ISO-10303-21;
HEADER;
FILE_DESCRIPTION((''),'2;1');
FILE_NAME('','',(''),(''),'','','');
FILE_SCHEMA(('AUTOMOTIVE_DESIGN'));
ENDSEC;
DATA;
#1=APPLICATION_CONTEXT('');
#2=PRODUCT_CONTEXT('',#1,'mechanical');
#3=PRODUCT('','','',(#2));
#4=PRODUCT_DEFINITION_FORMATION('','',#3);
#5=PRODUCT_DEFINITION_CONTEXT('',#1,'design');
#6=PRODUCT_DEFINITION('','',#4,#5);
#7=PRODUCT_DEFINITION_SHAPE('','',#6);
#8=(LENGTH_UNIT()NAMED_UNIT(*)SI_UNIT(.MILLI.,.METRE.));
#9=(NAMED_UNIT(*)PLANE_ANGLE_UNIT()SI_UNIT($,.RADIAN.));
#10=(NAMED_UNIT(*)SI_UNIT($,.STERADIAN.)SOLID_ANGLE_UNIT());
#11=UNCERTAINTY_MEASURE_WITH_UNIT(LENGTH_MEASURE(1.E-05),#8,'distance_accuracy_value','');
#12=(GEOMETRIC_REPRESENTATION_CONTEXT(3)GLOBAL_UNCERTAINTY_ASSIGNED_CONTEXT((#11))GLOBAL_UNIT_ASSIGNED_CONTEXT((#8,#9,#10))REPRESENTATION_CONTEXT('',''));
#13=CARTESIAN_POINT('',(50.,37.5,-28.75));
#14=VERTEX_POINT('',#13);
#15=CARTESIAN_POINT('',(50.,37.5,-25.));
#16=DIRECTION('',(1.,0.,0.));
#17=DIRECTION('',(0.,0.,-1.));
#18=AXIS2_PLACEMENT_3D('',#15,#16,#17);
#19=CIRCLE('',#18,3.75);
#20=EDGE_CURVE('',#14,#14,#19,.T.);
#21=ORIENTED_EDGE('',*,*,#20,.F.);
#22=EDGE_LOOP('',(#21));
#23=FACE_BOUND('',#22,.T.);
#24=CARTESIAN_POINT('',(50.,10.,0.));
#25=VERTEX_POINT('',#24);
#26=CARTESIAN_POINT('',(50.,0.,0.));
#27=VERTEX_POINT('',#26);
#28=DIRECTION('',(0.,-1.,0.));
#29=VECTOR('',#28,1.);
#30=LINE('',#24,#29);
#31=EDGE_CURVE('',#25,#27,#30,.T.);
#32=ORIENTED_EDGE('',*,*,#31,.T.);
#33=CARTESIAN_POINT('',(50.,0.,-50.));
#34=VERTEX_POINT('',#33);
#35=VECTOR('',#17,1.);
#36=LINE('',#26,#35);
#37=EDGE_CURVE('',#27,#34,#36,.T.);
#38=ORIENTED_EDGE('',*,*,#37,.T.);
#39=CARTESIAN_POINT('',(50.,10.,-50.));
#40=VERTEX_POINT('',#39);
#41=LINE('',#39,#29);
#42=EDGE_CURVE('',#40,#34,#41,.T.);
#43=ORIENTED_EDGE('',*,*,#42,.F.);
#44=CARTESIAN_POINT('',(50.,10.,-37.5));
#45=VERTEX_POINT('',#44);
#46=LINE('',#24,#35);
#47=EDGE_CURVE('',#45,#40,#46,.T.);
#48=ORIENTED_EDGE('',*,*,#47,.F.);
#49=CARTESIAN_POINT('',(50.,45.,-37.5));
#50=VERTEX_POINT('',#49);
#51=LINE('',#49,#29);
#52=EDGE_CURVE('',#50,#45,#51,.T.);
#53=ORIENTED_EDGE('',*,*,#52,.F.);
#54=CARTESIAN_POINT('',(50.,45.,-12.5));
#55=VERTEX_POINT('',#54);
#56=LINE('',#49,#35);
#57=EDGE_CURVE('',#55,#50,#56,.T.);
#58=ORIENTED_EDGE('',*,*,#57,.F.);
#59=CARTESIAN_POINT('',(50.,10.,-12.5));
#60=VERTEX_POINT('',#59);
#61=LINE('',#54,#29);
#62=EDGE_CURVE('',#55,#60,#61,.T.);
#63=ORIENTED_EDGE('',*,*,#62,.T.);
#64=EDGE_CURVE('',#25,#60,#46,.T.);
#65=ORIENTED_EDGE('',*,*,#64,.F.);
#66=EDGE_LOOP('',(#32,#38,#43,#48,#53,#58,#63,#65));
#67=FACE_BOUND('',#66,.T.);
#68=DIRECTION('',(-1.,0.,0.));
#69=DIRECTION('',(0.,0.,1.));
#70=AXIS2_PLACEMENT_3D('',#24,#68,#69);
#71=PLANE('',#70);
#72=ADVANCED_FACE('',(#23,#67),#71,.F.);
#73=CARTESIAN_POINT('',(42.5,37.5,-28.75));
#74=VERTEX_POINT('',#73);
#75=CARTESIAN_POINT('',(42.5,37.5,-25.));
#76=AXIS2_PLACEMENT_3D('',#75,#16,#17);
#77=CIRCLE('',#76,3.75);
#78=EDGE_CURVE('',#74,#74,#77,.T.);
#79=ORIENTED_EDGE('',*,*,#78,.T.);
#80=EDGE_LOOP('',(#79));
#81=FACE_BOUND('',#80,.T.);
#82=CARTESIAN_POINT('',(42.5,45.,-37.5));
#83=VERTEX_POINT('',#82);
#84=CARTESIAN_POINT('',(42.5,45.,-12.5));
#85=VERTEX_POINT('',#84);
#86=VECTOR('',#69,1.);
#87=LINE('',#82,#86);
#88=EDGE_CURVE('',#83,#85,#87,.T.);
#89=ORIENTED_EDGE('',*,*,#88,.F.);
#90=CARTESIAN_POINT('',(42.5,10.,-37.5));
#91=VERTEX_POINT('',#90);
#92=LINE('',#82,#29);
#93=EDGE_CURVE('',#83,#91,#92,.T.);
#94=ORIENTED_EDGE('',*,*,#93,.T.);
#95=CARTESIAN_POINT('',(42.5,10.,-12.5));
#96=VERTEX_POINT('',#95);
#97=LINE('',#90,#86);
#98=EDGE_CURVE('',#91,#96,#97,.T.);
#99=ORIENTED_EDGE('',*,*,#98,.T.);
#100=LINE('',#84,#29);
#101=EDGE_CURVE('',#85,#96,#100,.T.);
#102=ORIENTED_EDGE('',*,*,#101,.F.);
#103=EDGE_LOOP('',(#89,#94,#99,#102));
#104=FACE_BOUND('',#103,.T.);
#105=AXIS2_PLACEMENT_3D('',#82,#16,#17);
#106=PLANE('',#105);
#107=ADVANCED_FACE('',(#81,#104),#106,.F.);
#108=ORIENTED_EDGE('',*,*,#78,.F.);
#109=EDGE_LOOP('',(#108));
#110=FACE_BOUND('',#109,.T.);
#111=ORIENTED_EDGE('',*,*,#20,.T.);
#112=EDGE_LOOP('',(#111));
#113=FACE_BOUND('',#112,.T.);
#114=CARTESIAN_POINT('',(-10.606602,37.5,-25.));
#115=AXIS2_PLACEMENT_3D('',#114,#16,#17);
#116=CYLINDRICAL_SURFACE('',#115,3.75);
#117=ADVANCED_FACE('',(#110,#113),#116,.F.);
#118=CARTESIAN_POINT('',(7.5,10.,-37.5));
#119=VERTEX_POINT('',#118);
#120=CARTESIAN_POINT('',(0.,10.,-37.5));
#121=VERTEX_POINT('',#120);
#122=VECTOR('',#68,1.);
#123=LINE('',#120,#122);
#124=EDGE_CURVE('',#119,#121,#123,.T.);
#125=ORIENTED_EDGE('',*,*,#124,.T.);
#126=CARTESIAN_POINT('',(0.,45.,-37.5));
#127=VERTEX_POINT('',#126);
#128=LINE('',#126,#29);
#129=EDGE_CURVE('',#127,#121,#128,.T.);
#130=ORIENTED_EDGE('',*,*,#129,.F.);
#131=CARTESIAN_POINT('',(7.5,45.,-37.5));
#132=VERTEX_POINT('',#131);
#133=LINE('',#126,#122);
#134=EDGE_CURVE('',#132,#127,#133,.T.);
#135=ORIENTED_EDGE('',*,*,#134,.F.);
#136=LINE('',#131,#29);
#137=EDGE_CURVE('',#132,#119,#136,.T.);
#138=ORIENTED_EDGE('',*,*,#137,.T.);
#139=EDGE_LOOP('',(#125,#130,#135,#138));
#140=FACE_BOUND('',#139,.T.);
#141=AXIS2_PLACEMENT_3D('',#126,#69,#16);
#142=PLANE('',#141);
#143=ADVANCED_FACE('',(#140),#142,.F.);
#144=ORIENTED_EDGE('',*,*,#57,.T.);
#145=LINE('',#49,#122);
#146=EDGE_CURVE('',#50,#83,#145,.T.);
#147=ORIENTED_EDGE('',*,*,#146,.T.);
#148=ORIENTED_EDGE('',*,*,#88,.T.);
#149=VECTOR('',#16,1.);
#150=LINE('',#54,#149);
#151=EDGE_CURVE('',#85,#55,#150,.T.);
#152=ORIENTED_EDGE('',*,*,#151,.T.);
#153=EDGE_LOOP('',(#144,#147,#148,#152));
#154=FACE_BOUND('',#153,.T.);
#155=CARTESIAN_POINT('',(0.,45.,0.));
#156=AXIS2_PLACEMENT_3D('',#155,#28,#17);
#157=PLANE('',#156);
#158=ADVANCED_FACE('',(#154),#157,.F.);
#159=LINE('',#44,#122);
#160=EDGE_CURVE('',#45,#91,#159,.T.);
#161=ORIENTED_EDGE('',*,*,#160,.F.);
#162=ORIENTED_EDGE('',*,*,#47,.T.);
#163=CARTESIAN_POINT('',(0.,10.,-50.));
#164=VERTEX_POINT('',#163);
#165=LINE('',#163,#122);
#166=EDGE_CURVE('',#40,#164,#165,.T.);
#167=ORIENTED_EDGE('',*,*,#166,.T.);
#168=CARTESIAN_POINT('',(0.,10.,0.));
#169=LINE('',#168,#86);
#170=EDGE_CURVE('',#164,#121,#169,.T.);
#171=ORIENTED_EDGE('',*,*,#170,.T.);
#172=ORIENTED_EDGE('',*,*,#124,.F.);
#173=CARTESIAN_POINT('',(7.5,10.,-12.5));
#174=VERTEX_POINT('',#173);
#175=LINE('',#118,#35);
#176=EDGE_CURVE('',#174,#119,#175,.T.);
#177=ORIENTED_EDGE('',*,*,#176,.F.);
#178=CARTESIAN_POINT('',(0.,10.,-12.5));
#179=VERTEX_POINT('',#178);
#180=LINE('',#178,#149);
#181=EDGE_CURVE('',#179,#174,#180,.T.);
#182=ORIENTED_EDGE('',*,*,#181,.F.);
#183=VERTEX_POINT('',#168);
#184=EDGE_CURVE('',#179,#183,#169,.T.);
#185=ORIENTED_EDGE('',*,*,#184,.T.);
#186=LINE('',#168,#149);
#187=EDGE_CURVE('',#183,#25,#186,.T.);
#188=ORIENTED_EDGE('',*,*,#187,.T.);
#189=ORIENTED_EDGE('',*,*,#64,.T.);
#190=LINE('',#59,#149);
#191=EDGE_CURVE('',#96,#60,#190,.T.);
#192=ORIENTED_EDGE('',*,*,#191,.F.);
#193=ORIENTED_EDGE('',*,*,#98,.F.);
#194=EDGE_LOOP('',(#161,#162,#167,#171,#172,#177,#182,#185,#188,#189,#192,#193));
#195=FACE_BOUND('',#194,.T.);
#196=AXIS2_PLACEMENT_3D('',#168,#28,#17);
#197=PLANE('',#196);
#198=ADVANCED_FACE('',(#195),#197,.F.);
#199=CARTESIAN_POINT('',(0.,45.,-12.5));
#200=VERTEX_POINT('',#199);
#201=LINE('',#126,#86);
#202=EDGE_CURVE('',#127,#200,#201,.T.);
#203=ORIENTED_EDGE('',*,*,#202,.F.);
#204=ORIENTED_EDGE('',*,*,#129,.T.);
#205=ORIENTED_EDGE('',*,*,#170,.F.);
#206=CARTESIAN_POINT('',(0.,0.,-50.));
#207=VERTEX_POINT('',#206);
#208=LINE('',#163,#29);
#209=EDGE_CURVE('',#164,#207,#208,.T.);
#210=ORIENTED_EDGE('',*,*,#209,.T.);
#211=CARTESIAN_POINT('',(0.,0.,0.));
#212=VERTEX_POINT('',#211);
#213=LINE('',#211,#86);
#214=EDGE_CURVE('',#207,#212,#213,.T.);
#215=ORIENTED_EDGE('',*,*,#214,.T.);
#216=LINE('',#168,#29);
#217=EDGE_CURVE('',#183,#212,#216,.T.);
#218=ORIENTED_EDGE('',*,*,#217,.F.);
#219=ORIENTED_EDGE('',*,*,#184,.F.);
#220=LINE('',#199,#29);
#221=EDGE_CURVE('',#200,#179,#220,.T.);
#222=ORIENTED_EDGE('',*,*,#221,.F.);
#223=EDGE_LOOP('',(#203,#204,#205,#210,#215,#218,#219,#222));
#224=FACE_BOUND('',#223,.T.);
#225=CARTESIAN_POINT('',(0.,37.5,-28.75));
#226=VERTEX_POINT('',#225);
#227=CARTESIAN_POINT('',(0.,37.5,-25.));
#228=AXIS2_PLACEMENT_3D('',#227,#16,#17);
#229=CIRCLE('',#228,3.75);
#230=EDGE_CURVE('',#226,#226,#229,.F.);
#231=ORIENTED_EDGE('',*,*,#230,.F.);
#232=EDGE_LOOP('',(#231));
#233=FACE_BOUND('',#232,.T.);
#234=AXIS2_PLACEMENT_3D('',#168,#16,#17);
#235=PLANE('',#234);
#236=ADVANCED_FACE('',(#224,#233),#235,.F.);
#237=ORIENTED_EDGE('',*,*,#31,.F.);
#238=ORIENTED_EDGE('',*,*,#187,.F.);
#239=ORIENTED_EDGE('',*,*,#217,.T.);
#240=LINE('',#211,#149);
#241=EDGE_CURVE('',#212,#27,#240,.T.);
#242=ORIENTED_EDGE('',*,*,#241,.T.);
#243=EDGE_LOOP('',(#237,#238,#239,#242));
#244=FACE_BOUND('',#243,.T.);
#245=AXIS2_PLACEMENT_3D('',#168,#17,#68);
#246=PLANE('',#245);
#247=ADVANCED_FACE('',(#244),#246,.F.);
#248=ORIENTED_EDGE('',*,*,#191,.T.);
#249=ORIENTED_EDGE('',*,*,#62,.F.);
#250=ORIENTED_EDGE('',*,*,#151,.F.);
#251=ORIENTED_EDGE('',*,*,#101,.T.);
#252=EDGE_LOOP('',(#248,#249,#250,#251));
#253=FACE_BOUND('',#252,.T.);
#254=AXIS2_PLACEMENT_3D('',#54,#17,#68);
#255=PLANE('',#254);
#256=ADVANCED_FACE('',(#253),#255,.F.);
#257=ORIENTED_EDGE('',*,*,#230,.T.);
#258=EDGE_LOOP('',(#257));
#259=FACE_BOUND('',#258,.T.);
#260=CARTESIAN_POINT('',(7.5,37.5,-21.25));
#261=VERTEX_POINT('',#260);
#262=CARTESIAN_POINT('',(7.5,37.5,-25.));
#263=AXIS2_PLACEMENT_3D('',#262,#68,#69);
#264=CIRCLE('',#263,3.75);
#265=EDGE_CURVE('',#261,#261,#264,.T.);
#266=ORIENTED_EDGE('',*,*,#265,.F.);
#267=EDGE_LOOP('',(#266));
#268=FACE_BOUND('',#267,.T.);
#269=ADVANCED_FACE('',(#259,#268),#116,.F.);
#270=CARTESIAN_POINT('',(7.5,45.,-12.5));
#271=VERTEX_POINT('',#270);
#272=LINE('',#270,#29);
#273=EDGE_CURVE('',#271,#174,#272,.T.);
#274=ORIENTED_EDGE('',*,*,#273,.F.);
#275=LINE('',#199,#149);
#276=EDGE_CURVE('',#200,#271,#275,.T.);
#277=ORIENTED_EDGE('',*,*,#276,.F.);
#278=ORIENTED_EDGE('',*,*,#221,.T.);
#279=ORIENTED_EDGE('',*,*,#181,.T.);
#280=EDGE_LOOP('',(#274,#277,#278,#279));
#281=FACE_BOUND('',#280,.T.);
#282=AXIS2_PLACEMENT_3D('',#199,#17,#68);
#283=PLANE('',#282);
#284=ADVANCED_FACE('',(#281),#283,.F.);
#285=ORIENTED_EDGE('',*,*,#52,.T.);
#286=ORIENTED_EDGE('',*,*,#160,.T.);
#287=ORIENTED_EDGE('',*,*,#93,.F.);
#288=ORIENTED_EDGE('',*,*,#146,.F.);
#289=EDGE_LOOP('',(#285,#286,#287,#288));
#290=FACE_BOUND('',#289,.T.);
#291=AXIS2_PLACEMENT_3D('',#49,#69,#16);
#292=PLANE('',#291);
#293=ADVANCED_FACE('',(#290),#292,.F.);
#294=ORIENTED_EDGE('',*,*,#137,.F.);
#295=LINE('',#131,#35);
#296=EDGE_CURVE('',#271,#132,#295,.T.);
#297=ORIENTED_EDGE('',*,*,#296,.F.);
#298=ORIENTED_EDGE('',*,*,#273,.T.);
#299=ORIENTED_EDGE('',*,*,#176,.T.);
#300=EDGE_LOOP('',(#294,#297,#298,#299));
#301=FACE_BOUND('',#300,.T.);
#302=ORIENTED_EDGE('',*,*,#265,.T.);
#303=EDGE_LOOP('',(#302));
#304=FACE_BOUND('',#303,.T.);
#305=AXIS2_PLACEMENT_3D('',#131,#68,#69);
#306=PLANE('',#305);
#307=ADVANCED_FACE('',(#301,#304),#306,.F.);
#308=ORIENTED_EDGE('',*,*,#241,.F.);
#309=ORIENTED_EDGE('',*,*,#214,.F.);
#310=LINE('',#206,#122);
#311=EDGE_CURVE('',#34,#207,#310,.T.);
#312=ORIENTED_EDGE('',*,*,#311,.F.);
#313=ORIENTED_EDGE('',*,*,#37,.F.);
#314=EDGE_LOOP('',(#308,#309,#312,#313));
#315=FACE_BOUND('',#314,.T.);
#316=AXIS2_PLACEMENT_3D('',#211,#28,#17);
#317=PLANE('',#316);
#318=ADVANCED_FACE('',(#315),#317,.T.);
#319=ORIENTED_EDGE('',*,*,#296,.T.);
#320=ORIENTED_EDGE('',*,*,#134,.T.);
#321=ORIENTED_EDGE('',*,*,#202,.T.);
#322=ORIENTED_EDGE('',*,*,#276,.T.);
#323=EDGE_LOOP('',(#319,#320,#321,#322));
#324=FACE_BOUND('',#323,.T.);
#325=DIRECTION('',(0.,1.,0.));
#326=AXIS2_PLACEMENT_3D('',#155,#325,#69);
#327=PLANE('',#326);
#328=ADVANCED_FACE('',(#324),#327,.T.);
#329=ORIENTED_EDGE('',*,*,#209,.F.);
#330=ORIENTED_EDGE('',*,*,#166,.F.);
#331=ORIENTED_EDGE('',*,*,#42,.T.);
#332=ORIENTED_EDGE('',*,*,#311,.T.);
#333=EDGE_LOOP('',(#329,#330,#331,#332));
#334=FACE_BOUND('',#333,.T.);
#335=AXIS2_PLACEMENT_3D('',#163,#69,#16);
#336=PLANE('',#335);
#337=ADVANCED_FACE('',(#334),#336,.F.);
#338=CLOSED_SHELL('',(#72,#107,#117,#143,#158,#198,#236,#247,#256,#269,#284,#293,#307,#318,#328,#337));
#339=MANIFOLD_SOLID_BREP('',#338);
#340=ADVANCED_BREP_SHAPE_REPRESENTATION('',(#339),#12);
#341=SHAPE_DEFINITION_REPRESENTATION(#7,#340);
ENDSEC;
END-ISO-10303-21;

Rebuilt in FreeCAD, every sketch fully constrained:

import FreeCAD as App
import Part
import Sketcher

V = App.Vector
Q = App.Units.Quantity

doc = App.newDocument("Part")
body = doc.addObject("PartDesign::Body", "Body")

sketch1 = body.newObject("Sketcher::SketchObject", "Sketch")
sketch1.AttachmentSupport = (doc.getObject("XZ_Plane"), [""])
sketch1.MapMode = "FlatFace"
sketch1.addGeometry(Part.LineSegment(V(0, -50, 0), V(0, 0, 0)), False)
sketch1.addGeometry(Part.LineSegment(V(0, 0, 0), V(50, 0, 0)), False)
sketch1.addGeometry(Part.LineSegment(V(50, 0, 0), V(50, -50, 0)), False)
sketch1.addGeometry(Part.LineSegment(V(50, -50, 0), V(0, -50, 0)), False)
sketch1.addConstraint(Sketcher.Constraint("Coincident", 0, 2, 1, 1))
sketch1.addConstraint(Sketcher.Constraint("Coincident", 1, 2, 2, 1))
sketch1.addConstraint(Sketcher.Constraint("Coincident", 2, 2, 3, 1))
sketch1.addConstraint(Sketcher.Constraint("Coincident", 3, 2, 0, 1))
sketch1.addConstraint(Sketcher.Constraint("Vertical", 0))
sketch1.addConstraint(Sketcher.Constraint("Horizontal", 1))
sketch1.addConstraint(Sketcher.Constraint("Vertical", 2))
sketch1.addConstraint(Sketcher.Constraint("Horizontal", 3))
sketch1.addConstraint(Sketcher.Constraint("Coincident", 0, 2, -1, 1))
sketch1.addConstraint(Sketcher.Constraint("Equal", 3, 0))
sketch1.addConstraint(Sketcher.Constraint("DistanceX", 1, 1, 1, 2, Q("50 mm")))
pad1 = body.newObject("PartDesign::Pad", "Pad")
pad1.Profile = sketch1
pad1.Length = 10
pad1.Reversed = True

sketch2 = body.newObject("Sketcher::SketchObject", "Sketch001")
sketch2.AttachmentSupport = (doc.getObject("XZ_Plane"), [""])
sketch2.MapMode = "FlatFace"
sketch2.AttachmentOffset = App.Placement(V(0, 0, -10), App.Rotation())
sketch2.addGeometry(Part.LineSegment(V(0, -37.5, 0), V(0, -12.5, 0)), False)
sketch2.addGeometry(Part.LineSegment(V(0, -12.5, 0), V(7.5, -12.5, 0)), False)
sketch2.addGeometry(Part.LineSegment(V(7.5, -12.5, 0), V(7.5, -37.5, 0)), False)
sketch2.addGeometry(Part.LineSegment(V(7.5, -37.5, 0), V(0, -37.5, 0)), False)
sketch2.addGeometry(Part.LineSegment(V(42.5, -37.5, 0), V(42.5, -12.5, 0)), False)
sketch2.addGeometry(Part.LineSegment(V(42.5, -12.5, 0), V(50, -12.5, 0)), False)
sketch2.addGeometry(Part.LineSegment(V(50, -12.5, 0), V(50, -37.5, 0)), False)
sketch2.addGeometry(Part.LineSegment(V(50, -37.5, 0), V(42.5, -37.5, 0)), False)
sketch2.addConstraint(Sketcher.Constraint("Coincident", 0, 2, 1, 1))
sketch2.addConstraint(Sketcher.Constraint("Coincident", 1, 2, 2, 1))
sketch2.addConstraint(Sketcher.Constraint("Coincident", 2, 2, 3, 1))
sketch2.addConstraint(Sketcher.Constraint("Coincident", 3, 2, 0, 1))
sketch2.addConstraint(Sketcher.Constraint("Coincident", 4, 2, 5, 1))
sketch2.addConstraint(Sketcher.Constraint("Coincident", 5, 2, 6, 1))
sketch2.addConstraint(Sketcher.Constraint("Coincident", 6, 2, 7, 1))
sketch2.addConstraint(Sketcher.Constraint("Coincident", 7, 2, 4, 1))
sketch2.addConstraint(Sketcher.Constraint("Vertical", 0))
sketch2.addConstraint(Sketcher.Constraint("Horizontal", 1))
sketch2.addConstraint(Sketcher.Constraint("Vertical", 2))
sketch2.addConstraint(Sketcher.Constraint("Horizontal", 3))
sketch2.addConstraint(Sketcher.Constraint("Vertical", 4))
sketch2.addConstraint(Sketcher.Constraint("Horizontal", 5))
sketch2.addConstraint(Sketcher.Constraint("Vertical", 6))
sketch2.addConstraint(Sketcher.Constraint("Horizontal", 7))
sketch2.addConstraint(Sketcher.Constraint("PointOnObject", 0, 2, -2))
sketch2.addConstraint(Sketcher.Constraint("Horizontal", 1, 2, 4, 2))
sketch2.addConstraint(Sketcher.Constraint("Horizontal", 3, 2, 6, 2))
sketch2.addConstraint(Sketcher.Constraint("Equal", 3, 5))
sketch2.addConstraint(Sketcher.Constraint("DistanceY", 0, 1, 0, 2, Q("25 mm")))
sketch2.addConstraint(Sketcher.Constraint("DistanceX", 1, 1, 1, 2, Q("7.5 mm")))
sketch2.addConstraint(Sketcher.Constraint("DistanceX", -1, 1, 5, 2, Q("50 mm")))
sketch2.addConstraint(Sketcher.Constraint("DistanceY", 0, 2, -1, 1, Q("12.5 mm")))
pad2 = body.newObject("PartDesign::Pad", "Pad001")
pad2.Profile = sketch2
pad2.Length = 35
pad2.Reversed = True

sketch3 = body.newObject("Sketcher::SketchObject", "Sketch002")
sketch3.AttachmentSupport = (doc.getObject("YZ_Plane"), [""])
sketch3.MapMode = "FlatFace"
sketch3.AttachmentOffset = App.Placement(V(0, 0, 50), App.Rotation())
sketch3.addGeometry(Part.Circle(V(37.5, -25, 0), V(0, 0, 1), 3.75), False)
sketch3.addConstraint(Sketcher.Constraint("Diameter", 0, Q("7.5 mm")))
sketch3.addConstraint(Sketcher.Constraint("DistanceY", 0, 3, -1, 1, Q("25 mm")))
sketch3.addConstraint(Sketcher.Constraint("DistanceX", -1, 1, 0, 3, Q("37.5 mm")))
pocket1 = body.newObject("PartDesign::Pocket", "Pocket")
pocket1.Profile = sketch3
pocket1.Length = 50

doc.recompute()
